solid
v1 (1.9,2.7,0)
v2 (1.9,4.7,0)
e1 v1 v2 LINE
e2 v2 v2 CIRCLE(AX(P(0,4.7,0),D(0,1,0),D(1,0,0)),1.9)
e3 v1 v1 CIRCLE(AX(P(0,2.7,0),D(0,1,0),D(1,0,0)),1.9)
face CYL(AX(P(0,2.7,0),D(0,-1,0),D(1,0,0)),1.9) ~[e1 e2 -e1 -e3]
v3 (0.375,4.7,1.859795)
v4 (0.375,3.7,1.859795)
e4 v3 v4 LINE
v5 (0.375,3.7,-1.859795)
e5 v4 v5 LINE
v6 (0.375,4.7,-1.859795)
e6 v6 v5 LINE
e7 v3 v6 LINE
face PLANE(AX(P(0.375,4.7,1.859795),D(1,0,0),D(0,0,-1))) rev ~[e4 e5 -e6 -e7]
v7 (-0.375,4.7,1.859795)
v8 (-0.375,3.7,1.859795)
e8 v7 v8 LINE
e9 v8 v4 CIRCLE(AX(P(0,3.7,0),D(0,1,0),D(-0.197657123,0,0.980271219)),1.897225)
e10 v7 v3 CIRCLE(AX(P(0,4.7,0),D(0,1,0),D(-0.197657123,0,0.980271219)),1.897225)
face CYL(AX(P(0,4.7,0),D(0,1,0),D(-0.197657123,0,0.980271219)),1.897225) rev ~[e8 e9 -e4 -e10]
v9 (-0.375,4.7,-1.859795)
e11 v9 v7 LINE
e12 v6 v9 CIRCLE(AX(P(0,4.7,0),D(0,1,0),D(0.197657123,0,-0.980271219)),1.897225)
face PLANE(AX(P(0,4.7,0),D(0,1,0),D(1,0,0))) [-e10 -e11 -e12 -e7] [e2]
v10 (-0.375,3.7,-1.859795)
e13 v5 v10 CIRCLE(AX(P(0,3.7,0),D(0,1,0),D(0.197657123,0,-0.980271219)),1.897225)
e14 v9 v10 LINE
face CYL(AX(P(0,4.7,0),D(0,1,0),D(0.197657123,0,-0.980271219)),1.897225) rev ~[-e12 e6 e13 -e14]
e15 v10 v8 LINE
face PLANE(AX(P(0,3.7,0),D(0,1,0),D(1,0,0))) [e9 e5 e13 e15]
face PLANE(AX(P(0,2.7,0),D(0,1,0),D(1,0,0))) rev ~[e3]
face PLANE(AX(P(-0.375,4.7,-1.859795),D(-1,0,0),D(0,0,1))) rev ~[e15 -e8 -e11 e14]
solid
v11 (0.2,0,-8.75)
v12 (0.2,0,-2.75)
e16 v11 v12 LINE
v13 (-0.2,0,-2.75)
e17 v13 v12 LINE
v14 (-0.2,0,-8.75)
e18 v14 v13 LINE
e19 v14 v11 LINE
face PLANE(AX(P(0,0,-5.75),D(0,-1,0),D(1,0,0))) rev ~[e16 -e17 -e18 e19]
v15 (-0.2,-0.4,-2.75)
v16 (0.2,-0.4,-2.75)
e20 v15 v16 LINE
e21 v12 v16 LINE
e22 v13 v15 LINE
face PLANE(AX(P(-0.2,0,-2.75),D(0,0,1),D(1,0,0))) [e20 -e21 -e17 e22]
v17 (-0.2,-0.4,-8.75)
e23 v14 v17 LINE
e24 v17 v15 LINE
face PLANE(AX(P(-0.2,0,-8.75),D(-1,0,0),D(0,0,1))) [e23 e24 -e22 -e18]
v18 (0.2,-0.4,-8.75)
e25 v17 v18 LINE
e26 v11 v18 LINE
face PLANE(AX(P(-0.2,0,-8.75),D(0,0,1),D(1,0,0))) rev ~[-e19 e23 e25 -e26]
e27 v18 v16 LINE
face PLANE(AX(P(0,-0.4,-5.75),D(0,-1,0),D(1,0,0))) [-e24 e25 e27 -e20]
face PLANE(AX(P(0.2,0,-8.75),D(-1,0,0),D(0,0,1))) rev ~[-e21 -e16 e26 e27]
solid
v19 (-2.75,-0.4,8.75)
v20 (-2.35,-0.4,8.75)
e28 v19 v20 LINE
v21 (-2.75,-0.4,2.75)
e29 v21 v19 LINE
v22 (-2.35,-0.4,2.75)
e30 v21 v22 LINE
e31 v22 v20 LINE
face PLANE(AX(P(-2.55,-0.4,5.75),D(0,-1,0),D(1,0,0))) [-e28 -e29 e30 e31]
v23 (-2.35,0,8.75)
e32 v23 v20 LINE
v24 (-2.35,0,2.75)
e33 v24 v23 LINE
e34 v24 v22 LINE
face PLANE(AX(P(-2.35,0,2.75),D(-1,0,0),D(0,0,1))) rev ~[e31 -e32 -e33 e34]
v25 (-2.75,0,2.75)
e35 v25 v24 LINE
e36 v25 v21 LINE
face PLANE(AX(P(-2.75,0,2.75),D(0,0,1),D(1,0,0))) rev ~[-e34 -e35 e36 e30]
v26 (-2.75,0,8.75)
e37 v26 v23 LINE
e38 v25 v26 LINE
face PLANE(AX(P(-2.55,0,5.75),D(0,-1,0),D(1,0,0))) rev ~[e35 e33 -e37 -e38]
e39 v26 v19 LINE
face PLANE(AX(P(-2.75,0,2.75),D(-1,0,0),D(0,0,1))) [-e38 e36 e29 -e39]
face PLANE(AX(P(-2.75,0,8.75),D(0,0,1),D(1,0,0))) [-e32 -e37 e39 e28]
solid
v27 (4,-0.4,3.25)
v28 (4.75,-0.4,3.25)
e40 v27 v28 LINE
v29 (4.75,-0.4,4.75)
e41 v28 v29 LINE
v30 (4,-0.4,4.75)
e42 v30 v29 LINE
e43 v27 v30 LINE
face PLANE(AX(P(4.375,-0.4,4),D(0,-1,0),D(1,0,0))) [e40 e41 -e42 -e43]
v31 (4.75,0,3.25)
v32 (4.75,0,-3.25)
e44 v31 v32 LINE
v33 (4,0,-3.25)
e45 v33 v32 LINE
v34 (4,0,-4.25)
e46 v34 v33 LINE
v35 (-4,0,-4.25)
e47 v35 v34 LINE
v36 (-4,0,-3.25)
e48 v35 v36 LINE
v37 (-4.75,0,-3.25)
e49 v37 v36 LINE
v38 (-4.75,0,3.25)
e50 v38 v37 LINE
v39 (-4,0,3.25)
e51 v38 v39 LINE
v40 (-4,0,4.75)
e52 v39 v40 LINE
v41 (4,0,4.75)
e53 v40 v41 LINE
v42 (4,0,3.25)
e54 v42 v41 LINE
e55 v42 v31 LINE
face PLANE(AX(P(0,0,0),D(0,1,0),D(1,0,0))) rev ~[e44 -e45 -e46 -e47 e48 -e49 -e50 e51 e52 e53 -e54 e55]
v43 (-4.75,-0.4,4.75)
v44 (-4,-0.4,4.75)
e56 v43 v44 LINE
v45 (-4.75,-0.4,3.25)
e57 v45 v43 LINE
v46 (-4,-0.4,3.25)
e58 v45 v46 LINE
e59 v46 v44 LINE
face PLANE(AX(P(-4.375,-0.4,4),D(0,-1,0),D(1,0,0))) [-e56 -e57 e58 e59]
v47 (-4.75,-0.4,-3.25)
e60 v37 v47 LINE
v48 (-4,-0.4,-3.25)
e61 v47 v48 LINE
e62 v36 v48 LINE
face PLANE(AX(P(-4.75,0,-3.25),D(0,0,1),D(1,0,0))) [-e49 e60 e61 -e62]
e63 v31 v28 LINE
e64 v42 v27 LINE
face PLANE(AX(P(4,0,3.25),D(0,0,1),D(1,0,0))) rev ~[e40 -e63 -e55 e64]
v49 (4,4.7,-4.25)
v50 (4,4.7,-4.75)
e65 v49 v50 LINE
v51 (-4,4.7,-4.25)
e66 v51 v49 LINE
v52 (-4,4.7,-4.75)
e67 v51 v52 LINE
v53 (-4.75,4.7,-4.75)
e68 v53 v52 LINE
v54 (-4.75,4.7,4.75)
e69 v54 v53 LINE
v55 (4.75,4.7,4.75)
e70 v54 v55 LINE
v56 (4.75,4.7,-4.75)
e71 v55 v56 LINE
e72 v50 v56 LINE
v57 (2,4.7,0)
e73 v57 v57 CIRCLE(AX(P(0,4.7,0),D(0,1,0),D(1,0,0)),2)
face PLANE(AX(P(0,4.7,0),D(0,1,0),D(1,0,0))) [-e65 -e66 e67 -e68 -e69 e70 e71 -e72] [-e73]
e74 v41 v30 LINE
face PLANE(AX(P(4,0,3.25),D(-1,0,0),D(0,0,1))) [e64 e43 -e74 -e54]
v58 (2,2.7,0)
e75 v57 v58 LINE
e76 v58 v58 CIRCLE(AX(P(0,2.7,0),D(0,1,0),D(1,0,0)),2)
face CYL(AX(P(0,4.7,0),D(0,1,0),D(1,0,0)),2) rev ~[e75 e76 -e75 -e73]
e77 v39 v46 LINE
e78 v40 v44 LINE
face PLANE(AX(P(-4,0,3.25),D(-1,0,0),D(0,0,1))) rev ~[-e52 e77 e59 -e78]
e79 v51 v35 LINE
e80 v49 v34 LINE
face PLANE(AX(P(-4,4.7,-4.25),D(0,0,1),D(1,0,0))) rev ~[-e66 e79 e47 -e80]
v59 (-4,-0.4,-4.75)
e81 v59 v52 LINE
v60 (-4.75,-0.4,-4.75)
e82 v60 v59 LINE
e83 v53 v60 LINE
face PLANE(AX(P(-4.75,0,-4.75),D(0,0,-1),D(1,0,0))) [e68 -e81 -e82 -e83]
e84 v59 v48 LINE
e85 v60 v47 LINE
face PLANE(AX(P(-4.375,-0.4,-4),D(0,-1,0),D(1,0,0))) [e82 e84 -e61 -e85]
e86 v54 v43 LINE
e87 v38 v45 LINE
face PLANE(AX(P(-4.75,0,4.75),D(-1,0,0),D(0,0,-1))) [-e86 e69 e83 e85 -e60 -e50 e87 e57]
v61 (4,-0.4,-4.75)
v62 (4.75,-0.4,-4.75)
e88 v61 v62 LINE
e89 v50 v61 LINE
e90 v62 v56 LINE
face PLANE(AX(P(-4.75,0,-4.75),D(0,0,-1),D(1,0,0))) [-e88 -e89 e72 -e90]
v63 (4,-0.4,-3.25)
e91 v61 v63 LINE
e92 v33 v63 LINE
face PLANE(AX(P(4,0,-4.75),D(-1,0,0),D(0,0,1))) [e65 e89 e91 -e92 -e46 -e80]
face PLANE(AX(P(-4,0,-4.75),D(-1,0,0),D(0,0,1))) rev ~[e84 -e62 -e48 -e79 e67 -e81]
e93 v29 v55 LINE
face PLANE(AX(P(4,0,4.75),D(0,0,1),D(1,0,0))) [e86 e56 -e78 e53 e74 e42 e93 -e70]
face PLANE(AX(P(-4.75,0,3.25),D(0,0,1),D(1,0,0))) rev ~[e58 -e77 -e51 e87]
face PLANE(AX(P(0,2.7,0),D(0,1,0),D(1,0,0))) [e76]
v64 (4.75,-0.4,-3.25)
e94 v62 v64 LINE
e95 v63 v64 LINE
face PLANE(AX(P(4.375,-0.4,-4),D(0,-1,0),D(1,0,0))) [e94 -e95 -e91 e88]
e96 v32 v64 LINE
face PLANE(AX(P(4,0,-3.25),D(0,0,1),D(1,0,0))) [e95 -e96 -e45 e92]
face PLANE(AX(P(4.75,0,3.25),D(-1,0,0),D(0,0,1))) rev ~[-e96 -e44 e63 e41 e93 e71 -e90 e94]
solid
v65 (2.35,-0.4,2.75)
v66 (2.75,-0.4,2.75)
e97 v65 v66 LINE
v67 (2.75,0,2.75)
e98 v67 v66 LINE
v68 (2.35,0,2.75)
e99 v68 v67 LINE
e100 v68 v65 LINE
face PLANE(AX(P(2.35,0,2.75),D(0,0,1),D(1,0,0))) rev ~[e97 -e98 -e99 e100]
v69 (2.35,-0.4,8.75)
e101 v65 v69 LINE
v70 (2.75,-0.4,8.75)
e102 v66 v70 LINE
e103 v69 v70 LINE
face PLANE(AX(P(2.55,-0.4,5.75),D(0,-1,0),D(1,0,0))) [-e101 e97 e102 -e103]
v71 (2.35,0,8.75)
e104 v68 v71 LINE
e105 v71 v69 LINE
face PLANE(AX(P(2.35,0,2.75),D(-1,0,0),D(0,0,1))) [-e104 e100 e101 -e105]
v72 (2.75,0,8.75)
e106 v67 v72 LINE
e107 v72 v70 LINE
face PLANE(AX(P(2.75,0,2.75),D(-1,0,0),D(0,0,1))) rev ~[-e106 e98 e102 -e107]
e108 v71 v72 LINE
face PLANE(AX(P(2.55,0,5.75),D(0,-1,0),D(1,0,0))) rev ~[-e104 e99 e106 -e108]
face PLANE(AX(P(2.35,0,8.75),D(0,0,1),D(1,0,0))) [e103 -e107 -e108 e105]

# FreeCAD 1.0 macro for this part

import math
import FreeCAD as App
import Part
import Sketcher

V = App.Vector
Q = App.Units.Quantity


def add_polygon(sketch, points):
    """Adds a closed chain of lines whose ends are joined by coincident constraints."""
    first, n = sketch.GeometryCount, len(points)
    for a, b in zip(points, points[1:] + points[:1]):
        sketch.addGeometry(Part.LineSegment(App.Vector(*a, 0), App.Vector(*b, 0)), False)
    for i in range(n):
        sketch.addConstraint(Sketcher.Constraint("Coincident", first + i, 2, first + (i + 1) % n, 1))

doc = App.newDocument("Part")
body = doc.addObject("PartDesign::Body", "Body")

# Sketch on XZ plane
sketch1 = body.newObject("Sketcher::SketchObject", "Sketch")
sketch1.AttachmentSupport = (doc.getObject("XZ_Plane"), [""])
sketch1.MapMode = "FlatFace"
add_polygon(sketch1, [(-5, -5), (-5, 5), (5, 5), (5, -5)])  # lines 0-3
sketch1.addConstraint([
    Sketcher.Constraint("Vertical", 0),
    Sketcher.Constraint("Horizontal", 1),
    Sketcher.Constraint("Vertical", 2),
    Sketcher.Constraint("Horizontal", 3),
    Sketcher.Constraint("Symmetric", 0, 2, 2, 2, -1, 1),
    Sketcher.Constraint("Equal", 3, 0),
    Sketcher.Constraint("DistanceX", 1, 1, 1, 2, Q("9.5 mm")),
])
pad1 = body.newObject("PartDesign::Pad", "Pad")
pad1.Profile = sketch1
pad1.Length = 4.7
pad1.Reversed = True

# Sketch on XZ plane
sketch2 = body.newObject("Sketcher::SketchObject", "Sketch001")
sketch2.AttachmentSupport = (doc.getObject("XZ_Plane"), [""])
sketch2.MapMode = "FlatFace"
add_polygon(sketch2, [(4, 4.8), (4, 3.2), (4.8, 3.2), (4.8, 4.8)])  # lines 0-3
add_polygon(sketch2, [(-4.8, 4.8), (-4.8, 3.2), (-4, 3.2), (-4, 4.8)])  # lines 4-7
add_polygon(sketch2, [(4, -3.2), (4, -4.8), (4.8, -4.8), (4.8, -3.2)])  # lines 8-11
add_polygon(sketch2, [(-4.8, -3.2), (-4.8, -4.8), (-4, -4.8), (-4, -3.2)])  # lines 12-15
sketch2.addConstraint([
    Sketcher.Constraint("Vertical", 0),
    Sketcher.Constraint("Horizontal", 1),
    Sketcher.Constraint("Vertical", 2),
    Sketcher.Constraint("Horizontal", 3),
    Sketcher.Constraint("Vertical", 4),
    Sketcher.Constraint("Horizontal", 5),
    Sketcher.Constraint("Vertical", 6),
    Sketcher.Constraint("Horizontal", 7),
    Sketcher.Constraint("Vertical", 8),
    Sketcher.Constraint("Horizontal", 9),
    Sketcher.Constraint("Vertical", 10),
    Sketcher.Constraint("Horizontal", 11),
    Sketcher.Constraint("Vertical", 12),
    Sketcher.Constraint("Horizontal", 13),
    Sketcher.Constraint("Vertical", 14),
    Sketcher.Constraint("Horizontal", 15),
    Sketcher.Constraint("Symmetric", 6, 2, 8, 2, -1, 1),
    Sketcher.Constraint("Symmetric", 4, 2, 10, 2, -1, 1),
    Sketcher.Constraint("Symmetric", 2, 2, 12, 2, -1, 1),
    Sketcher.Constraint("Symmetric", 0, 2, 14, 2, -1, 1),
    Sketcher.Constraint("Symmetric", 1, 2, 4, 2, -2),
    Sketcher.Constraint("Symmetric", 3, 2, 6, 2, -2),
    Sketcher.Constraint("DistanceY", 0, 2, 0, 1, Q("1.5 mm")),
    Sketcher.Constraint("DistanceX", -1, 1, 0, 2, Q("4 mm")),
    Sketcher.Constraint("DistanceY", 8, 2, 0, 2, Q("8 mm")),
    Sketcher.Constraint("DistanceX", 1, 1, 1, 2, Q("0.75 mm")),
])
pad2 = body.newObject("PartDesign::Pad", "Pad001")
pad2.Profile = sketch2
pad2.Length = 0.4

# Sketch on XZ plane
sketch3 = body.newObject("Sketcher::SketchObject", "Sketch002")
sketch3.AttachmentSupport = (doc.getObject("XZ_Plane"), [""])
sketch3.MapMode = "FlatFace"
sketch3.AttachmentOffset = App.Placement(V(0, 0, -4.7), App.Rotation())
add_polygon(sketch3, [(-4, -4.8), (-4, -4.2), (4, -4.2), (4, -4.8)])  # lines 0-3
sketch3.addConstraint([
    Sketcher.Constraint("Vertical", 0),
    Sketcher.Constraint("Horizontal", 1),
    Sketcher.Constraint("Vertical", 2),
    Sketcher.Constraint("Horizontal", 3),
    Sketcher.Constraint("DistanceX", 1, 1, 1, 2, Q("8 mm")),
    Sketcher.Constraint("DistanceY", 0, 1, 0, 2, Q("0.5 mm")),
    Sketcher.Constraint("DistanceX", 0, 2, -1, 1, Q("4 mm")),
    Sketcher.Constraint("DistanceY", 0, 2, -1, 1, Q("4.25 mm")),
])
pocket1 = body.newObject("PartDesign::Pocket", "Pocket")
pocket1.Profile = sketch3
pocket1.Length = 4.7
pocket1.Reversed = True

# Sketch on XZ plane
sketch4 = body.newObject("Sketcher::SketchObject", "Sketch003")
sketch4.AttachmentSupport = (doc.getObject("XZ_Plane"), [""])
sketch4.MapMode = "FlatFace"
sketch4.AttachmentOffset = App.Placement(V(0, 0, -4.7), App.Rotation())
sketch4.addGeometry(Part.Circle(V(0, 0, 0), V(0, 0, 1), 2), False)
sketch4.addConstraint([
    Sketcher.Constraint("Coincident", 0, 3, -1, 1),
    Sketcher.Constraint("Diameter", 0, Q("4 mm")),
])
pocket2 = body.newObject("PartDesign::Pocket", "Pocket001")
pocket2.Profile = sketch4
pocket2.Type = "TwoLengths"
pocket2.Length = 1
pocket2.Length2 = 2
body2 = doc.addObject("PartDesign::Body", "Body001")

# Sketch on XZ plane
sketch5 = body2.newObject("Sketcher::SketchObject", "Sketch004")
sketch5.AttachmentSupport = (doc.getObject("XZ_Plane001"), [""])
sketch5.MapMode = "FlatFace"
add_polygon(sketch5, [(2.35, 8.75), (2.35, 2.75), (2.75, 2.75), (2.75, 8.75)])  # lines 0-3
sketch5.addConstraint([
    Sketcher.Constraint("Vertical", 0),
    Sketcher.Constraint("Horizontal", 1),
    Sketcher.Constraint("Vertical", 2),
    Sketcher.Constraint("Horizontal", 3),
    Sketcher.Constraint("DistanceY", 0, 2, 0, 1, Q("6 mm")),
    Sketcher.Constraint("DistanceX", 1, 1, 1, 2, Q("0.4 mm")),
    Sketcher.Constraint("DistanceX", -1, 1, 0, 2, Q("2.35 mm")),
    Sketcher.Constraint("DistanceY", -1, 1, 0, 2, Q("2.75 mm")),
])
pad3 = body2.newObject("PartDesign::Pad", "Pad002")
pad3.Profile = sketch5
pad3.Length = 0.4
body3 = doc.addObject("PartDesign::Body", "Body002")

# Sketch on XZ plane
sketch6 = body3.newObject("Sketcher::SketchObject", "Sketch005")
sketch6.AttachmentSupport = (doc.getObject("XZ_Plane002"), [""])
sketch6.MapMode = "FlatFace"
add_polygon(sketch6, [(-0.2, -2.75), (-0.2, -8.75), (0.2, -8.75), (0.2, -2.75)])  # lines 0-3
sketch6.addConstraint([
    Sketcher.Constraint("Vertical", 0),
    Sketcher.Constraint("Horizontal", 1),
    Sketcher.Constraint("Vertical", 2),
    Sketcher.Constraint("Horizontal", 3),
    Sketcher.Constraint("DistanceY", 0, 2, 0, 1, Q("6 mm")),
    Sketcher.Constraint("DistanceX", 1, 1, 1, 2, Q("0.4 mm")),
    Sketcher.Constraint("DistanceX", 0, 2, -1, 1, Q("0.2 mm")),
    Sketcher.Constraint("DistanceY", 0, 2, -1, 1, Q("8.75 mm")),
])
pad4 = body3.newObject("PartDesign::Pad", "Pad003")
pad4.Profile = sketch6
pad4.Length = 0.4
body4 = doc.addObject("PartDesign::Body", "Body003")

# Sketch on XZ plane
sketch7 = body4.newObject("Sketcher::SketchObject", "Sketch006")
sketch7.AttachmentSupport = (doc.getObject("XZ_Plane003"), [""])
sketch7.MapMode = "FlatFace"
add_polygon(sketch7, [(-2.75, 8.75), (-2.75, 2.75), (-2.35, 2.75), (-2.35, 8.75)])  # lines 0-3
sketch7.addConstraint([
    Sketcher.Constraint("Vertical", 0),
    Sketcher.Constraint("Horizontal", 1),
    Sketcher.Constraint("Vertical", 2),
    Sketcher.Constraint("Horizontal", 3),
    Sketcher.Constraint("DistanceY", 0, 2, 0, 1, Q("6 mm")),
    Sketcher.Constraint("DistanceX", 1, 1, 1, 2, Q("0.4 mm")),
    Sketcher.Constraint("DistanceX", 0, 2, -1, 1, Q("2.75 mm")),
    Sketcher.Constraint("DistanceY", -1, 1, 0, 2, Q("2.75 mm")),
])
pad5 = body4.newObject("PartDesign::Pad", "Pad004")
pad5.Profile = sketch7
pad5.Length = 0.4
body5 = doc.addObject("PartDesign::Body", "Body004")

# Sketch on XZ plane
sketch8 = body5.newObject("Sketcher::SketchObject", "Sketch007")
sketch8.AttachmentSupport = (doc.getObject("XZ_Plane004"), [""])
sketch8.MapMode = "FlatFace"
sketch8.AttachmentOffset = App.Placement(V(0, 0, -2.7), App.Rotation())
sketch8.addGeometry(Part.Circle(V(0, 0, 0), V(0, 0, 1), 1.9), False)
sketch8.addConstraint([
    Sketcher.Constraint("Coincident", 0, 3, -1, 1),
    Sketcher.Constraint("Diameter", 0, Q("3.8 mm")),
])
pad6 = body5.newObject("PartDesign::Pad", "Pad005")
pad6.Profile = sketch8
pad6.Length = 2
pad6.Reversed = True

# Sketch on XZ plane
sketch9 = body5.newObject("Sketcher::SketchObject", "Sketch008")
sketch9.AttachmentSupport = (doc.getObject("XZ_Plane004"), [""])
sketch9.MapMode = "FlatFace"
sketch9.AttachmentOffset = App.Placement(V(0, 0, -4.7), App.Rotation())
sketch9.addGeometry([
    Part.LineSegment(V(0.4, 1.9, 0), V(0.4, -1.9, 0)),
    Part.ArcOfCircle(Part.Circle(V(0, 0, 0), V(0, 0, 1), 1.9), math.radians(-101), math.radians(-79)),
    Part.LineSegment(V(-0.4, -1.9, 0), V(-0.4, 1.9, 0)),
    Part.ArcOfCircle(Part.Circle(V(0, 0, 0), V(0, 0, 1), 1.9), math.radians(79), math.radians(101)),
], False)
sketch9.addConstraint([
    Sketcher.Constraint("Coincident", 0, 2, 1, 2),
    Sketcher.Constraint("Coincident", 1, 1, 2, 1),
    Sketcher.Constraint("Coincident", 2, 2, 3, 2),
    Sketcher.Constraint("Coincident", 3, 1, 0, 1),
    Sketcher.Constraint("Vertical", 0),
    Sketcher.Constraint("Vertical", 2),
    Sketcher.Constraint("Coincident", 1, 3, -1, 1),
    Sketcher.Constraint("Coincident", 3, 3, -1, 1),
    Sketcher.Constraint("Equal", 1, 3),
    Sketcher.Constraint("Horizontal", 0, 2, 1, 1),
    Sketcher.Constraint("DistanceX", 1, 1, 0, 2, Q("0.75 mm")),
    Sketcher.Constraint("Radius", 1, Q("1.897225 mm")),
])
pocket3 = body5.newObject("PartDesign::Pocket", "Pocket002")
pocket3.Profile = sketch9
pocket3.Length = 1
pocket3.Reversed = True

doc.recompute()
